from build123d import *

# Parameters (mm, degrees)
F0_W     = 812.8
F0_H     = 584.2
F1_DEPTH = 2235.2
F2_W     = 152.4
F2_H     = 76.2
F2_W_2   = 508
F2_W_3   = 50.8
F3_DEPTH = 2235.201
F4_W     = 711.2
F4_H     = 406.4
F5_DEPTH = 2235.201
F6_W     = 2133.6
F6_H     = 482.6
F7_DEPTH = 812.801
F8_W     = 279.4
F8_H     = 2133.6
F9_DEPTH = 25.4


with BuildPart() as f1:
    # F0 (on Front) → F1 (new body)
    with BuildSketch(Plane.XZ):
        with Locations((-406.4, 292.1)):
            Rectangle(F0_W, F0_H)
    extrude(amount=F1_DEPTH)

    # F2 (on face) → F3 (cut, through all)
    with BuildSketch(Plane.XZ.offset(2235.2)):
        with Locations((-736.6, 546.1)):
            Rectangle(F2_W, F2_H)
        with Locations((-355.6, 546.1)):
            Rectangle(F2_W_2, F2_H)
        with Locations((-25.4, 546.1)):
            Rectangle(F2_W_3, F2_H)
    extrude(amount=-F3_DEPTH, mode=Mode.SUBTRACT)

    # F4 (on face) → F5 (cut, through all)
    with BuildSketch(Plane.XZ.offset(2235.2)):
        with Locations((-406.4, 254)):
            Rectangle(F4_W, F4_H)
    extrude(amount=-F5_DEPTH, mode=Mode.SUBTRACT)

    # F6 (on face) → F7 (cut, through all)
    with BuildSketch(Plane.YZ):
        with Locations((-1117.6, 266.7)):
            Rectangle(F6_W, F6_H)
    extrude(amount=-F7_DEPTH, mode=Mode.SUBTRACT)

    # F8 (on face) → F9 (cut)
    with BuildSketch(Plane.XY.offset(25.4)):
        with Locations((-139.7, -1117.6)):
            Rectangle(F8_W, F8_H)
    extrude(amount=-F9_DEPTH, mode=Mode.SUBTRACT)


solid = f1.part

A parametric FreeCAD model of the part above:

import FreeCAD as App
import Part
import Sketcher
from FreeCAD import Vector
Q = App.Units.Quantity

doc = App.newDocument("Part")
params = doc.addObject("Spreadsheet::Sheet", "Params")
for row, (alias, value) in enumerate([
    ("sketch1_width", "32 in"),
    ("sketch1_height", "23 in"),
    ("pad1_length", "88 in"),
    ("sketch2_width", "6 in"),
    ("sketch2_width2", "20 in"),
    ("sketch2_width3", "2 in"),
    ("sketch2_height", "3 in"),
    ("sketch3_width", "28 in"),
    ("sketch3_height", "16 in"),
    ("sketch4_width", "84 in"),
    ("sketch4_height", "19 in"),
    ("sketch5_width", "11 in"),
    ("sketch5_height", "84 in"),
    ("pocket4_length", "1 in"),
], start=1):
    params.set(f"A{row}", alias)
    params.set(f"B{row}", "=" + value)
    params.setAlias(f"B{row}", alias)

body = doc.addObject("PartDesign::Body", "Body")

# Sketch on XZ plane
sketch1 = doc.addObject("Sketcher::SketchObject", "Sketch")
body.addObject(sketch1)
sketch1.AttachmentSupport = (doc.XZ_Plane, [""])
sketch1.MapMode = "FlatFace"
sketch1.addGeometry(Part.LineSegment(Vector(-813, 584, 0), Vector(-813, 0, 0)), False)
sketch1.addGeometry(Part.LineSegment(Vector(-813, 0, 0), Vector(0, 0, 0)), False)
sketch1.addGeometry(Part.LineSegment(Vector(0, 0, 0), Vector(0, 584, 0)), False)
sketch1.addGeometry(Part.LineSegment(Vector(0, 584, 0), Vector(-813, 584, 0)), False)
sketch1.addConstraint(Sketcher.Constraint("Coincident", 0, 2, 1, 1))
sketch1.addConstraint(Sketcher.Constraint("Coincident", 1, 2, 2, 1))
sketch1.addConstraint(Sketcher.Constraint("Coincident", 2, 2, 3, 1))
sketch1.addConstraint(Sketcher.Constraint("Coincident", 3, 2, 0, 1))
sketch1.addConstraint(Sketcher.Constraint("Vertical", 0))
sketch1.addConstraint(Sketcher.Constraint("Horizontal", 1))
sketch1.addConstraint(Sketcher.Constraint("Vertical", 2))
sketch1.addConstraint(Sketcher.Constraint("Horizontal", 3))
sketch1.addConstraint(Sketcher.Constraint("Coincident", 1, 2, -1, 1))
sketch1.addConstraint(Sketcher.Constraint("DistanceX", 1, 1, 1, 2, Q("32 in")))
sketch1.addConstraint(Sketcher.Constraint("DistanceY", 0, 2, 0, 1, Q("23 in")))
sketch1.setExpression("Constraints[9]", "Params.sketch1_width")
sketch1.setExpression("Constraints[10]", "Params.sketch1_height")
pad1 = doc.addObject("PartDesign::Pad", "Pad")
body.addObject(pad1)
pad1.Profile = sketch1
pad1.setExpression("Length", "Params.pad1_length")

# Sketch on XZ plane
sketch2 = doc.addObject("Sketcher::SketchObject", "Sketch001")
body.addObject(sketch2)
sketch2.AttachmentSupport = (doc.XZ_Plane, [""])
sketch2.MapMode = "FlatFace"
sketch2.AttachmentOffset = App.Placement(Vector(0, 0, 88 * 25.4), App.Rotation())
sketch2.addGeometry(Part.LineSegment(Vector(-813, 584, 0), Vector(-813, 508, 0)), False)
sketch2.addGeometry(Part.LineSegment(Vector(-813, 508, 0), Vector(-660, 508, 0)), False)
sketch2.addGeometry(Part.LineSegment(Vector(-660, 508, 0), Vector(-660, 584, 0)), False)
sketch2.addGeometry(Part.LineSegment(Vector(-660, 584, 0), Vector(-813, 584, 0)), False)
sketch2.addGeometry(Part.LineSegment(Vector(-610, 584, 0), Vector(-610, 508, 0)), False)
sketch2.addGeometry(Part.LineSegment(Vector(-610, 508, 0), Vector(-102, 508, 0)), False)
sketch2.addGeometry(Part.LineSegment(Vector(-102, 508, 0), Vector(-102, 584, 0)), False)
sketch2.addGeometry(Part.LineSegment(Vector(-102, 584, 0), Vector(-610, 584, 0)), False)
sketch2.addGeometry(Part.LineSegment(Vector(-51, 584, 0), Vector(-51, 508, 0)), False)
sketch2.addGeometry(Part.LineSegment(Vector(-51, 508, 0), Vector(0, 508, 0)), False)
sketch2.addGeometry(Part.LineSegment(Vector(0, 508, 0), Vector(0, 584, 0)), False)
sketch2.addGeometry(Part.LineSegment(Vector(0, 584, 0), Vector(-51, 584, 0)), False)
sketch2.addConstraint(Sketcher.Constraint("Coincident", 0, 2, 1, 1))
sketch2.addConstraint(Sketcher.Constraint("Coincident", 1, 2, 2, 1))
sketch2.addConstraint(Sketcher.Constraint("Coincident", 2, 2, 3, 1))
sketch2.addConstraint(Sketcher.Constraint("Coincident", 3, 2, 0, 1))
sketch2.addConstraint(Sketcher.Constraint("Coincident", 4, 2, 5, 1))
sketch2.addConstraint(Sketcher.Constraint("Coincident", 5, 2, 6, 1))
sketch2.addConstraint(Sketcher.Constraint("Coincident", 6, 2, 7, 1))
sketch2.addConstraint(Sketcher.Constraint("Coincident", 7, 2, 4, 1))
sketch2.addConstraint(Sketcher.Constraint("Coincident", 8, 2, 9, 1))
sketch2.addConstraint(Sketcher.Constraint("Coincident", 9, 2, 10, 1))
sketch2.addConstraint(Sketcher.Constraint("Coincident", 10, 2, 11, 1))
sketch2.addConstraint(Sketcher.Constraint("Coincident", 11, 2, 8, 1))
sketch2.addConstraint(Sketcher.Constraint("Vertical", 0))
sketch2.addConstraint(Sketcher.Constraint("Horizontal", 1))
sketch2.addConstraint(Sketcher.Constraint("Vertical", 2))
sketch2.addConstraint(Sketcher.Constraint("Horizontal", 3))
sketch2.addConstraint(Sketcher.Constraint("Vertical", 4))
sketch2.addConstraint(Sketcher.Constraint("Horizontal", 5))
sketch2.addConstraint(Sketcher.Constraint("Vertical", 6))
sketch2.addConstraint(Sketcher.Constraint("Horizontal", 7))
sketch2.addConstraint(Sketcher.Constraint("Vertical", 8))
sketch2.addConstraint(Sketcher.Constraint("Horizontal", 9))
sketch2.addConstraint(Sketcher.Constraint("Vertical", 10))
sketch2.addConstraint(Sketcher.Constraint("Horizontal", 11))
sketch2.addConstraint(Sketcher.Constraint("PointOnObject", 9, 2, -2))
sketch2.addConstraint(Sketcher.Constraint("Horizontal", 1, 2, 4, 2))
sketch2.addConstraint(Sketcher.Constraint("Horizontal", 3, 2, 6, 2))
sketch2.addConstraint(Sketcher.Constraint("Horizontal", 5, 2, 8, 2))
sketch2.addConstraint(Sketcher.Constraint("Horizontal", 7, 2, 10, 2))
sketch2.addConstraint(Sketcher.Constraint("DistanceX", 1, 1, 1, 2, Q("6 in")))
sketch2.addConstraint(Sketcher.Constraint("DistanceX", 5, 1, 5, 2, Q("20 in")))
sketch2.addConstraint(Sketcher.Constraint("DistanceX", 9, 1, 9, 2, Q("2 in")))
sketch2.addConstraint(Sketcher.Constraint("DistanceY", 0, 2, 0, 1, Q("3 in")))
sketch2.addConstraint(Sketcher.Constraint("DistanceX", 0, 2, -1, 1, Q("32 in")))
sketch2.addConstraint(Sketcher.Constraint("DistanceY", -1, 1, 0, 2, Q("20 in")))
sketch2.addConstraint(Sketcher.Constraint("DistanceX", 4, 2, -1, 1, Q("24 in")))
sketch2.setExpression("Constraints[29]", "Params.sketch2_width")
sketch2.setExpression("Constraints[30]", "Params.sketch2_width2")
sketch2.setExpression("Constraints[31]", "Params.sketch2_width3")
sketch2.setExpression("Constraints[32]", "Params.sketch2_height")
pocket1 = doc.addObject("PartDesign::Pocket", "Pocket")
body.addObject(pocket1)
pocket1.Profile = sketch2
pocket1.Type = "ThroughAll"

# Sketch on XZ plane
sketch3 = doc.addObject("Sketcher::SketchObject", "Sketch002")
body.addObject(sketch3)
sketch3.AttachmentSupport = (doc.XZ_Plane, [""])
sketch3.MapMode = "FlatFace"
sketch3.AttachmentOffset = App.Placement(Vector(0, 0, 88 * 25.4), App.Rotation())
sketch3.addGeometry(Part.LineSegment(Vector(-762, 457, 0), Vector(-762, 51, 0)), False)
sketch3.addGeometry(Part.LineSegment(Vector(-762, 51, 0), Vector(-51, 51, 0)), False)
sketch3.addGeometry(Part.LineSegment(Vector(-51, 51, 0), Vector(-51, 457, 0)), False)
sketch3.addGeometry(Part.LineSegment(Vector(-51, 457, 0), Vector(-762, 457, 0)), False)
sketch3.addConstraint(Sketcher.Constraint("Coincident", 0, 2, 1, 1))
sketch3.addConstraint(Sketcher.Constraint("Coincident", 1, 2, 2, 1))
sketch3.addConstraint(Sketcher.Constraint("Coincident", 2, 2, 3, 1))
sketch3.addConstraint(Sketcher.Constraint("Coincident", 3, 2, 0, 1))
sketch3.addConstraint(Sketcher.Constraint("Vertical", 0))
sketch3.addConstraint(Sketcher.Constraint("Horizontal", 1))
sketch3.addConstraint(Sketcher.Constraint("Vertical", 2))
sketch3.addConstraint(Sketcher.Constraint("Horizontal", 3))
sketch3.addConstraint(Sketcher.Constraint("DistanceX", 1, 1, 1, 2, Q("28 in")))
sketch3.addConstraint(Sketcher.Constraint("DistanceY", 0, 2, 0, 1, Q("16 in")))
sketch3.addConstraint(Sketcher.Constraint("DistanceX", 0, 2, -1, 1, Q("30 in")))
sketch3.addConstraint(Sketcher.Constraint("DistanceY", -1, 1, 0, 2, Q("2 in")))
sketch3.setExpression("Constraints[8]", "Params.sketch3_width")
sketch3.setExpression("Constraints[9]", "Params.sketch3_height")
pocket2 = doc.addObject("PartDesign::Pocket", "Pocket001")
body.addObject(pocket2)
pocket2.Profile = sketch3
pocket2.Type = "ThroughAll"

# Sketch on YZ plane
sketch4 = doc.addObject("Sketcher::SketchObject", "Sketch003")
body.addObject(sketch4)
sketch4.AttachmentSupport = (doc.YZ_Plane, [""])
sketch4.MapMode = "FlatFace"
sketch4.addGeometry(Part.LineSegment(Vector(-2184, 508, 0), Vector(-2184, 25, 0)), False)
sketch4.addGeometry(Part.LineSegment(Vector(-2184, 25, 0), Vector(-51, 25, 0)), False)
sketch4.addGeometry(Part.LineSegment(Vector(-51, 25, 0), Vector(-51, 508, 0)), False)
sketch4.addGeometry(Part.LineSegment(Vector(-51, 508, 0), Vector(-2184, 508, 0)), False)
sketch4.addConstraint(Sketcher.Constraint("Coincident", 0, 2, 1, 1))
sketch4.addConstraint(Sketcher.Constraint("Coincident", 1, 2, 2, 1))
sketch4.addConstraint(Sketcher.Constraint("Coincident", 2, 2, 3, 1))
sketch4.addConstraint(Sketcher.Constraint("Coincident", 3, 2, 0, 1))
sketch4.addConstraint(Sketcher.Constraint("Vertical", 0))
sketch4.addConstraint(Sketcher.Constraint("Horizontal", 1))
sketch4.addConstraint(Sketcher.Constraint("Vertical", 2))
sketch4.addConstraint(Sketcher.Constraint("Horizontal", 3))
sketch4.addConstraint(Sketcher.Constraint("DistanceX", 1, 1, 1, 2, Q("84 in")))
sketch4.addConstraint(Sketcher.Constraint("DistanceY", 0, 2, 0, 1, Q("19 in")))
sketch4.addConstraint(Sketcher.Constraint("DistanceX", 0, 2, -1, 1, Q("86 in")))
sketch4.addConstraint(Sketcher.Constraint("DistanceY", -1, 1, 0, 2, Q("1 in")))
sketch4.setExpression("Constraints[8]", "Params.sketch4_width")
sketch4.setExpression("Constraints[9]", "Params.sketch4_height")
pocket3 = doc.addObject("PartDesign::Pocket", "Pocket002")
body.addObject(pocket3)
pocket3.Profile = sketch4
pocket3.Type = "ThroughAll"

# Sketch on XY plane
sketch5 = doc.addObject("Sketcher::SketchObject", "Sketch004")
body.addObject(sketch5)
sketch5.AttachmentSupport = (doc.XY_Plane, [""])
sketch5.MapMode = "FlatFace"
sketch5.AttachmentOffset = App.Placement(Vector(0, 0, 1 * 25.4), App.Rotation())
sketch5.addGeometry(Part.LineSegment(Vector(-279, -51, 0), Vector(-279, -2184, 0)), False)
sketch5.addGeometry(Part.LineSegment(Vector(-279, -2184, 0), Vector(0, -2184, 0)), False)
sketch5.addGeometry(Part.LineSegment(Vector(0, -2184, 0), Vector(0, -51, 0)), False)
sketch5.addGeometry(Part.LineSegment(Vector(0, -51, 0), Vector(-279, -51, 0)), False)
sketch5.addConstraint(Sketcher.Constraint("Coincident", 0, 2, 1, 1))
sketch5.addConstraint(Sketcher.Constraint("Coincident", 1, 2, 2, 1))
sketch5.addConstraint(Sketcher.Constraint("Coincident", 2, 2, 3, 1))
sketch5.addConstraint(Sketcher.Constraint("Coincident", 3, 2, 0, 1))
sketch5.addConstraint(Sketcher.Constraint("Vertical", 0))
sketch5.addConstraint(Sketcher.Constraint("Horizontal", 1))
sketch5.addConstraint(Sketcher.Constraint("Vertical", 2))
sketch5.addConstraint(Sketcher.Constraint("Horizontal", 3))
sketch5.addConstraint(Sketcher.Constraint("PointOnObject", 1, 2, -2))
sketch5.addConstraint(Sketcher.Constraint("DistanceX", 1, 1, 1, 2, Q("11 in")))
sketch5.addConstraint(Sketcher.Constraint("DistanceY", 0, 2, 0, 1, Q("84 in")))
sketch5.addConstraint(Sketcher.Constraint("DistanceY", 0, 2, -1, 1, Q("86 in")))
sketch5.setExpression("Constraints[9]", "Params.sketch5_width")
sketch5.setExpression("Constraints[10]", "Params.sketch5_height")
pocket4 = doc.addObject("PartDesign::Pocket", "Pocket003")
body.addObject(pocket4)
pocket4.Profile = sketch5
pocket4.setExpression("Length", "Params.pocket4_length")

doc.recompute()
